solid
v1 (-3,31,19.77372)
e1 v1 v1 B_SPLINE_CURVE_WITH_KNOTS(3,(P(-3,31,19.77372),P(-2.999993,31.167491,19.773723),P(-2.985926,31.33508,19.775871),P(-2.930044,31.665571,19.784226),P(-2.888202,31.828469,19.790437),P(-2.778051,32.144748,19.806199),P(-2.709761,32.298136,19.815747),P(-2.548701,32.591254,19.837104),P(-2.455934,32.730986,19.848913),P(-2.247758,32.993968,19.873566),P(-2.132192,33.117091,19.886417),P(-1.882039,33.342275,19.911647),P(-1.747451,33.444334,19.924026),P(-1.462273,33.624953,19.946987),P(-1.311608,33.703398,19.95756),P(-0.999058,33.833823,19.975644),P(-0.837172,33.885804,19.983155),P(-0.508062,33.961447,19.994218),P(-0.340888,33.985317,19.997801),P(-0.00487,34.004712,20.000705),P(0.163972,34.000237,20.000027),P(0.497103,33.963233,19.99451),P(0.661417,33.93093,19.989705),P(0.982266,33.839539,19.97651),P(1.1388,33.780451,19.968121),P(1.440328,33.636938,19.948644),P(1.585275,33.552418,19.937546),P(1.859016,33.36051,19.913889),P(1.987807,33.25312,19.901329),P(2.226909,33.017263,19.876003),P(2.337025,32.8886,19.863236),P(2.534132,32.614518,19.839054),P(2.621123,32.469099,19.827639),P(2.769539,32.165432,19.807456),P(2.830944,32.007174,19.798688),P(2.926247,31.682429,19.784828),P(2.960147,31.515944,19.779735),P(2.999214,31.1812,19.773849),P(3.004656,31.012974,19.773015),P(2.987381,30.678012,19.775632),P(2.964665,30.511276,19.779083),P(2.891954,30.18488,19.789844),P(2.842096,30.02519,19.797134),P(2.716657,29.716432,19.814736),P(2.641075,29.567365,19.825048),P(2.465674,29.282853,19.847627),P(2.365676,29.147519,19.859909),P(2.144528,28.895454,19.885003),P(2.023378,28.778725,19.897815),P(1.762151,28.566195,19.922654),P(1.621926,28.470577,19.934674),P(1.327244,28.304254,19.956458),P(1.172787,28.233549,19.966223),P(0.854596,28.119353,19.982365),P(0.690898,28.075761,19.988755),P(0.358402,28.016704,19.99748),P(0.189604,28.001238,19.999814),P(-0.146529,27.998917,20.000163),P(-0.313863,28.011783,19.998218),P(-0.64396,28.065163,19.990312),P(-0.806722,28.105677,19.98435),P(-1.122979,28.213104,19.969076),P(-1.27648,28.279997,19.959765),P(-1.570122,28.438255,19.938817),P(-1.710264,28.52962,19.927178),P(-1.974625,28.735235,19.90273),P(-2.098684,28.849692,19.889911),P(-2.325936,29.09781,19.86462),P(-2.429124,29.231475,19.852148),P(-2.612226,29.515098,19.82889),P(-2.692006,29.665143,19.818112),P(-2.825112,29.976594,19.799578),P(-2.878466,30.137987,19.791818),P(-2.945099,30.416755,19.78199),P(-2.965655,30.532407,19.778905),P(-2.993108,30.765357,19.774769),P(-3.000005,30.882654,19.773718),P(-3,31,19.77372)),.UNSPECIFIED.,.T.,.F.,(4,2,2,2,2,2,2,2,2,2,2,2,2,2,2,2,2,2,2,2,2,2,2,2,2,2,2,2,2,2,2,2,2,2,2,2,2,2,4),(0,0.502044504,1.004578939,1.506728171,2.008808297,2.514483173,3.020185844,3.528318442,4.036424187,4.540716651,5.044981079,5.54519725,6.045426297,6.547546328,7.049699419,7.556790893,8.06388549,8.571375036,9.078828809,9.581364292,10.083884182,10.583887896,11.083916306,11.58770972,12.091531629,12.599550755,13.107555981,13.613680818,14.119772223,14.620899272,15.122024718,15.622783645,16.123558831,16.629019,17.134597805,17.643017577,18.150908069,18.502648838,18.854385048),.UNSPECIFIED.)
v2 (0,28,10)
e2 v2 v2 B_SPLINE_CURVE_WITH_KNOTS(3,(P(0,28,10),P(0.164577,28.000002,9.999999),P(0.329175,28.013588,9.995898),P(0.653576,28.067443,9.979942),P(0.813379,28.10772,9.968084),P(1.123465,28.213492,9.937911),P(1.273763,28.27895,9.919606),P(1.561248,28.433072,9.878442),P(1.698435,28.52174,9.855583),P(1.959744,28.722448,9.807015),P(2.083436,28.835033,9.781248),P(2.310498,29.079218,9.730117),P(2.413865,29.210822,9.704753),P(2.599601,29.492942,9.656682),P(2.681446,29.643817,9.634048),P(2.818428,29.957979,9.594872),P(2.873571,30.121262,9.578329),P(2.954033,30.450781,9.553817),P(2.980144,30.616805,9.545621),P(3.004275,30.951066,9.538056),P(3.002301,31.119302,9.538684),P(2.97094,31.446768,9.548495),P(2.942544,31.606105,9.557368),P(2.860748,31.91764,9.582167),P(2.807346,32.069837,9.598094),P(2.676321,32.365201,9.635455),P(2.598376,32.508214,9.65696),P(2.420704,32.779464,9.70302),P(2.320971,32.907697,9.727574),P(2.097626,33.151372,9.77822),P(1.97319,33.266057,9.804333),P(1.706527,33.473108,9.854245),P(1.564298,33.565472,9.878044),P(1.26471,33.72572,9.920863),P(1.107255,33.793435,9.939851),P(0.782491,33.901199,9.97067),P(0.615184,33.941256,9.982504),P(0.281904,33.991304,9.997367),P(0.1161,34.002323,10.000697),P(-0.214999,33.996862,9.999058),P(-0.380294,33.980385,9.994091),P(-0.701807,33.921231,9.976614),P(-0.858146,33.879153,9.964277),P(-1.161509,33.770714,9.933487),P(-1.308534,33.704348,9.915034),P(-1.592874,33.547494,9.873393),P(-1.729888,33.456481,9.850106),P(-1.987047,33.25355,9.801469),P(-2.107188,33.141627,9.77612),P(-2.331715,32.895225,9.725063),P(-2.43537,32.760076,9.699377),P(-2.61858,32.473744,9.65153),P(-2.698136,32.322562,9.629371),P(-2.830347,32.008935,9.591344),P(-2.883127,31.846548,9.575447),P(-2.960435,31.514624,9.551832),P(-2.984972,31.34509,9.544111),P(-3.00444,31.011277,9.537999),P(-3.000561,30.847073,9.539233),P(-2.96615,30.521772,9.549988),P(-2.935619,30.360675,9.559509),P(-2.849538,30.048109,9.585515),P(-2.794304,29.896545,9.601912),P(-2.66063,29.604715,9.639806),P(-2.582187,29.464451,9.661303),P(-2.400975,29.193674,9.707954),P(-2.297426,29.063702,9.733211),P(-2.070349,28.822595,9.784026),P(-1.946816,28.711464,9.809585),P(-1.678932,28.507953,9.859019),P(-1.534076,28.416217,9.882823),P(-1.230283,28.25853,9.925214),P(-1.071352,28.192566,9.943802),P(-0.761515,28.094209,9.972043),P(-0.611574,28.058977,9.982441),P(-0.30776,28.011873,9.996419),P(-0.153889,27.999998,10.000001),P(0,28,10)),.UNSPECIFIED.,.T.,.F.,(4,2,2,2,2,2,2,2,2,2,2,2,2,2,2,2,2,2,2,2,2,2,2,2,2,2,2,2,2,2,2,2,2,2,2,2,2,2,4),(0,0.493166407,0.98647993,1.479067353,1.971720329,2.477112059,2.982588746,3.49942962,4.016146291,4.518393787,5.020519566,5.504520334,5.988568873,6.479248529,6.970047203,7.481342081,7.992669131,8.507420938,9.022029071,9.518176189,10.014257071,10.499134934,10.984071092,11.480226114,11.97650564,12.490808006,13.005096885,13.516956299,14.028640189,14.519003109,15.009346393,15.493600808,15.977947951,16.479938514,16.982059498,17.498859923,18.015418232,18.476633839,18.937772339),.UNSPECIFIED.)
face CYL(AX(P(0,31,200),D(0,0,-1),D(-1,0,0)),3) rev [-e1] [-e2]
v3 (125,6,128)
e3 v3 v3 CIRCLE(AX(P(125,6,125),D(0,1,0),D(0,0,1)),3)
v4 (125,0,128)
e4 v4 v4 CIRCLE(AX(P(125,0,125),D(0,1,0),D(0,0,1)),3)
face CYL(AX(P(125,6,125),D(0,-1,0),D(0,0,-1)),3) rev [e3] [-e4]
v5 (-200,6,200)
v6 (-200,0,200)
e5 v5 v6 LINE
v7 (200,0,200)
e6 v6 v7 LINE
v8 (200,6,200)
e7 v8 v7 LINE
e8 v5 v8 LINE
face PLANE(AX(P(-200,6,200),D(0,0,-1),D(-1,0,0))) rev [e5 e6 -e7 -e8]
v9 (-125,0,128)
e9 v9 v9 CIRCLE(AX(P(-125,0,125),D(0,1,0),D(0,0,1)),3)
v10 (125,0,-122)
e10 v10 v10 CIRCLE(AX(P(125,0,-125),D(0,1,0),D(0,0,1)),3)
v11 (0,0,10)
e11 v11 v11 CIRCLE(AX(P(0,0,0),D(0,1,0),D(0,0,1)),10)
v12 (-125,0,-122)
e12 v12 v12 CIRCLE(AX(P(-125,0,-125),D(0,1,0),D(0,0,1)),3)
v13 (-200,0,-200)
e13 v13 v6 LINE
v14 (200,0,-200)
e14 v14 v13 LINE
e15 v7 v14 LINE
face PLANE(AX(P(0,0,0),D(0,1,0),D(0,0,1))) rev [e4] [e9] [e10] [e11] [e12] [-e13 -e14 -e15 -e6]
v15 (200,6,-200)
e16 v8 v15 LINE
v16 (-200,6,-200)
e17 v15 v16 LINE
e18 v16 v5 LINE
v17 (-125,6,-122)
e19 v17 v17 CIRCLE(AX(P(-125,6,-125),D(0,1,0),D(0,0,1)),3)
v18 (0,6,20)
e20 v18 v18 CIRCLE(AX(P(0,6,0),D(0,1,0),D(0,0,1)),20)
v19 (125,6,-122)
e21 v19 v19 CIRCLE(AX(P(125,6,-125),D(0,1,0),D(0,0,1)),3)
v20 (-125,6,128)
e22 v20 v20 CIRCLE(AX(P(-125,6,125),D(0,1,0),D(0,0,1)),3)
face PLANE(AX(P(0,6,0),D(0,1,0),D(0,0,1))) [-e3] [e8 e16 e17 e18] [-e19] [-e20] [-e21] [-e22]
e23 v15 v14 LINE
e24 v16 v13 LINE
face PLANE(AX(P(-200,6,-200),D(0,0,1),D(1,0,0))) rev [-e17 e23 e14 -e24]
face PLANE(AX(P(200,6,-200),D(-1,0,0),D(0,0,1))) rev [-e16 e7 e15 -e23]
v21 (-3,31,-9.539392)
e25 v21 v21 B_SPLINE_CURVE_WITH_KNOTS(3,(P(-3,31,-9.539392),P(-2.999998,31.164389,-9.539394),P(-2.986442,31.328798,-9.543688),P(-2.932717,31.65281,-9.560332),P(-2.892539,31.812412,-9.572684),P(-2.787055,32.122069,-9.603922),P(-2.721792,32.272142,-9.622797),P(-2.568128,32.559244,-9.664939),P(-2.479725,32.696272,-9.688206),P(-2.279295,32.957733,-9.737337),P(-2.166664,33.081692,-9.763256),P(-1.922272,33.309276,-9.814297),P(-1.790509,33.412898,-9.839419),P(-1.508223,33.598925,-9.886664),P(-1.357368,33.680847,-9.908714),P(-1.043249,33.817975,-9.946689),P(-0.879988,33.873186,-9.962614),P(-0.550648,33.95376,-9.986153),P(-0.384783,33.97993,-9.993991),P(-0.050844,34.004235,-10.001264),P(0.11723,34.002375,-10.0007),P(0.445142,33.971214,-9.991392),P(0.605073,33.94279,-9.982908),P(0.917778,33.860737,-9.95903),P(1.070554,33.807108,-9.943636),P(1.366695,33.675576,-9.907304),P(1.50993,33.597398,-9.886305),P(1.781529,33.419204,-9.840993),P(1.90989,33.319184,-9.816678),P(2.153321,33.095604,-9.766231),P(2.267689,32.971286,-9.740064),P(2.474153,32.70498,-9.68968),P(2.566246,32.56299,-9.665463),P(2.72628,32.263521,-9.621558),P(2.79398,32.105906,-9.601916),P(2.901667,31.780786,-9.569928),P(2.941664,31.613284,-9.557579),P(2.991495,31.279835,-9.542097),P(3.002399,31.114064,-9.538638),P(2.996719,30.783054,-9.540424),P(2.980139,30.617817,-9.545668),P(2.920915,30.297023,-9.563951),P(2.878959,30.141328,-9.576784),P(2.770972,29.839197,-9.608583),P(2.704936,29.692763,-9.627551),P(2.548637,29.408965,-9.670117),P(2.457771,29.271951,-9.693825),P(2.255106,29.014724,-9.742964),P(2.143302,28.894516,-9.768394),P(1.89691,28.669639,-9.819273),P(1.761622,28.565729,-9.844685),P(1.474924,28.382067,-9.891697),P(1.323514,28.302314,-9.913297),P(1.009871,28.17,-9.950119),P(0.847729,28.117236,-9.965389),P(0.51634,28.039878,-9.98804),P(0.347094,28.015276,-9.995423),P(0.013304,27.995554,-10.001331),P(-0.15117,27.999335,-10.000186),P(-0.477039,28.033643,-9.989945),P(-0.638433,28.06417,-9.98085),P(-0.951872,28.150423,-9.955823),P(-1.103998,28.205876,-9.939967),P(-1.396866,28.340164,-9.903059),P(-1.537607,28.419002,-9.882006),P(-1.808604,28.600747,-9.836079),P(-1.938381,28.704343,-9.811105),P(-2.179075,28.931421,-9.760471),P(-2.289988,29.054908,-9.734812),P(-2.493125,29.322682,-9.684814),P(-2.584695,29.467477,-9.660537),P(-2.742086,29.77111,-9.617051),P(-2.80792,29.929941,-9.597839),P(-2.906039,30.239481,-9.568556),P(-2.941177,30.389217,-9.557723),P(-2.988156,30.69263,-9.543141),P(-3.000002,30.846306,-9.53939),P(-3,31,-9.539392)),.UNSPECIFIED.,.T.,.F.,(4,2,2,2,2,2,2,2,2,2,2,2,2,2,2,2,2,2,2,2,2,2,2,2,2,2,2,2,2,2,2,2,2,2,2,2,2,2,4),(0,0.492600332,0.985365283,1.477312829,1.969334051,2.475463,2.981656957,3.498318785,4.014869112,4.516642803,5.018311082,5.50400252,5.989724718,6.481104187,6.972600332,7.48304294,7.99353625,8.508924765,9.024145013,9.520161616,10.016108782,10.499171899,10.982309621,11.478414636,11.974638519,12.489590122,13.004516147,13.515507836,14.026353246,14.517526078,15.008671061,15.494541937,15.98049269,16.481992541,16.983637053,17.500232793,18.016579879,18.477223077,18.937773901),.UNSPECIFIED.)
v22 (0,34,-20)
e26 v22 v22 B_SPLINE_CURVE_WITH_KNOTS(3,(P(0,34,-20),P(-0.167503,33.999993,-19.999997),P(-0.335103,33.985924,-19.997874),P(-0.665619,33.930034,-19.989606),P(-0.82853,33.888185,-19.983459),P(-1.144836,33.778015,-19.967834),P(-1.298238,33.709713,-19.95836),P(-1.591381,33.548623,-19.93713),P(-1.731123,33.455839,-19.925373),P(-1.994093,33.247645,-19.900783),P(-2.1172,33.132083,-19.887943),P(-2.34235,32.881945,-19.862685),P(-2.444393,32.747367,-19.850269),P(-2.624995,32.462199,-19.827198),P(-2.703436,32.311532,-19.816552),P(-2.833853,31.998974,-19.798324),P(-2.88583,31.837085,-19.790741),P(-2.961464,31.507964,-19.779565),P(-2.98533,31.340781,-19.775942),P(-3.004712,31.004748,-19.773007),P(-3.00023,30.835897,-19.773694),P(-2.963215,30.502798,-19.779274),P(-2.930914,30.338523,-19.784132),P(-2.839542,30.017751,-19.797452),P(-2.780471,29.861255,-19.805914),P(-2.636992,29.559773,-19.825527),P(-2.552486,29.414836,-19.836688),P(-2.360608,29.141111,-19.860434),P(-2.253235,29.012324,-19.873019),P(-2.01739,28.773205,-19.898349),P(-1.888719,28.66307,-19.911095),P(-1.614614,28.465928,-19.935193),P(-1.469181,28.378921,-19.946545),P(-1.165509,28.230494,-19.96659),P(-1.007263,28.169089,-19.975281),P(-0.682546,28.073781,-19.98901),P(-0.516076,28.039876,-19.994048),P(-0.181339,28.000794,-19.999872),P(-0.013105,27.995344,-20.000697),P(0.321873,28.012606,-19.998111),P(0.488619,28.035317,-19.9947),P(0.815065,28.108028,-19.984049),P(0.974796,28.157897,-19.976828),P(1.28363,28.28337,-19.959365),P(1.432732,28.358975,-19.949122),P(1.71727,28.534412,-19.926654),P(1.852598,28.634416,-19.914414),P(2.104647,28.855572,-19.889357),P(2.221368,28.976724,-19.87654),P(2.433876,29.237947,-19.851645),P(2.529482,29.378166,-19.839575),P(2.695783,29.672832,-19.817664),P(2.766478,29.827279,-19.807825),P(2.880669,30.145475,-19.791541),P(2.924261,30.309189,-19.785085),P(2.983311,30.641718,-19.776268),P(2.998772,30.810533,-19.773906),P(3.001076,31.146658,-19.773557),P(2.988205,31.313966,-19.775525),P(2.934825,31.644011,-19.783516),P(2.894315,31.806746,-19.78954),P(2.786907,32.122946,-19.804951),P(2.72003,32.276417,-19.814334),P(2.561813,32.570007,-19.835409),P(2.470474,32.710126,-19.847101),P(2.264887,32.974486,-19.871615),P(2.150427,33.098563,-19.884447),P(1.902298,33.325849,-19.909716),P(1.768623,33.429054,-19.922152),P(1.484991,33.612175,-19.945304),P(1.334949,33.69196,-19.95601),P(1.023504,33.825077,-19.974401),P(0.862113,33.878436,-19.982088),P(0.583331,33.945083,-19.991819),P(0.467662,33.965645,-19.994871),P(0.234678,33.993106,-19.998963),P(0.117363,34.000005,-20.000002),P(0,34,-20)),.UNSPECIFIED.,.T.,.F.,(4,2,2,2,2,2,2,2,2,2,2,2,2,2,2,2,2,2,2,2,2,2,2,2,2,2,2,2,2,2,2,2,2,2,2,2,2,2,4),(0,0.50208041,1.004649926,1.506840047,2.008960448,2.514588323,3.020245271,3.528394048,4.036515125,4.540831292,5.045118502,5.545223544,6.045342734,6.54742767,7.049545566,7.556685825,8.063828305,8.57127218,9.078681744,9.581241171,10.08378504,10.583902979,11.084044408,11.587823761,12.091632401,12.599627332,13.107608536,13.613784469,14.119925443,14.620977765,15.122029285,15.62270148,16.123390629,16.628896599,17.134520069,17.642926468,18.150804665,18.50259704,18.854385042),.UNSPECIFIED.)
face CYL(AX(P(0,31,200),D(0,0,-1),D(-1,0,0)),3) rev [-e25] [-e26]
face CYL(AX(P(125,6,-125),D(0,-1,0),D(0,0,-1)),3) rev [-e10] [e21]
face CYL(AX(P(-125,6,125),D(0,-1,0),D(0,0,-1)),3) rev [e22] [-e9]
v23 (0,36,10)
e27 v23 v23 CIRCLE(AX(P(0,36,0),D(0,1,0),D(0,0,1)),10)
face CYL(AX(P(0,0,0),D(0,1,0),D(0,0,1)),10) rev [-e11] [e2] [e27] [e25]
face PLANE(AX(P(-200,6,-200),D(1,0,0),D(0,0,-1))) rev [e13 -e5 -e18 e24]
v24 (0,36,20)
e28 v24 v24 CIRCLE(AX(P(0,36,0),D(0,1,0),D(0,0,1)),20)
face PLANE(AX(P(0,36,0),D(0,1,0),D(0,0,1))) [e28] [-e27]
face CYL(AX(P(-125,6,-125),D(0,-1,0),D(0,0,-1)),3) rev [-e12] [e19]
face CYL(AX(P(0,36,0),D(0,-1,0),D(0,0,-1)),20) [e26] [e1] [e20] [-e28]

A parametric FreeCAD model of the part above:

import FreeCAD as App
import Part
import Sketcher

V = App.Vector

doc = App.newDocument("Part")
params = doc.addObject("Spreadsheet::Sheet", "Params")
for row, (alias, value) in enumerate([
    ("sketch1_diameter", "6 mm"),
    ("sketch1_width", "400 mm"),
    ("pad1_length", "6 mm"),
    ("sketch2_diameter", "40 mm"),
    ("pad2_length", "30 mm"),
    ("sketch3_diameter", "20 mm"),
    ("sketch4_diameter", "6 mm"),
], start=1):
    params.set(f"A{row}", alias)
    params.set(f"B{row}", "=" + value)
    params.setAlias(f"B{row}", alias)

body = doc.addObject("PartDesign::Body", "Body")

# Sketch on XZ plane
sketch1 = body.newObject("Sketcher::SketchObject", "Sketch")
sketch1.AttachmentSupport = (doc.getObject("XZ_Plane"), [""])
sketch1.MapMode = "FlatFace"
sketch1.addGeometry([
    Part.LineSegment(V(-200, -200, 0), V(-200, 200, 0)),  # 0
    Part.LineSegment(V(-200, 200, 0), V(200, 200, 0)),  # 1
    Part.LineSegment(V(200, 200, 0), V(200, -200, 0)),  # 2
    Part.LineSegment(V(200, -200, 0), V(-200, -200, 0)),  # 3
    Part.Circle(V(-125, 125, 0), V(0, 0, 1), 3),  # 4
    Part.Circle(V(125, 125, 0), V(0, 0, 1), 3),  # 5
    Part.Circle(V(-125, -125, 0), V(0, 0, 1), 3),  # 6
    Part.Circle(V(125, -125, 0), V(0, 0, 1), 3),  # 7
], False)
sketch1.addConstraint([
    Sketcher.Constraint("Coincident", 0, 2, 1, 1),
    Sketcher.Constraint("Coincident", 1, 2, 2, 1),
    Sketcher.Constraint("Coincident", 2, 2, 3, 1),
    Sketcher.Constraint("Coincident", 3, 2, 0, 1),
    Sketcher.Constraint("Vertical", 0),
    Sketcher.Constraint("Horizontal", 1),
    Sketcher.Constraint("Vertical", 2),
    Sketcher.Constraint("Horizontal", 3),
    Sketcher.Constraint("Equal", 4, 5),
    Sketcher.Constraint("Equal", 5, 6),
    Sketcher.Constraint("Equal", 6, 7),
    Sketcher.Constraint("Symmetric", 5, 3, 6, 3, -1, 1),
    Sketcher.Constraint("Symmetric", 4, 3, 7, 3, -1, 1),
    Sketcher.Constraint("Symmetric", 0, 2, 2, 2, -1, 1),
    Sketcher.Constraint("Symmetric", 4, 3, 5, 3, -2),
    Sketcher.Constraint("Equal", 3, 0),
    Sketcher.Constraint("Diameter", 4, 6.0),
    Sketcher.Constraint("DistanceX", 1, 1, 1, 2, 400.0),
    Sketcher.Constraint("DistanceX", 4, 3, -1, 1, 125.0),
    Sketcher.Constraint("DistanceY", -1, 1, 4, 3, 125.0),
])
sketch1.setExpression("Constraints[16]", "Params.sketch1_diameter")
sketch1.setExpression("Constraints[17]", "Params.sketch1_width")
pad1 = body.newObject("PartDesign::Pad", "Pad")
pad1.Profile = sketch1
pad1.setExpression("Length", "Params.pad1_length")
pad1.Reversed = True

# Sketch on XZ plane
sketch2 = body.newObject("Sketcher::SketchObject", "Sketch001")
sketch2.AttachmentSupport = (doc.getObject("XZ_Plane"), [""])
sketch2.MapMode = "FlatFace"
sketch2.AttachmentOffset = App.Placement(V(0, 0, -6), App.Rotation())
sketch2.addGeometry(Part.Circle(V(0, 0, 0), V(0, 0, 1), 20), False)
sketch2.addConstraint([
    Sketcher.Constraint("Coincident", 0, 3, -1, 1),
    Sketcher.Constraint("Diameter", 0, 40.0),
])
sketch2.setExpression("Constraints[1]", "Params.sketch2_diameter")
pad2 = body.newObject("PartDesign::Pad", "Pad001")
pad2.Profile = sketch2
pad2.setExpression("Length", "Params.pad2_length")
pad2.Reversed = True

# Sketch on XZ plane
sketch3 = body.newObject("Sketcher::SketchObject", "Sketch002")
sketch3.AttachmentSupport = (doc.getObject("XZ_Plane"), [""])
sketch3.MapMode = "FlatFace"
sketch3.AttachmentOffset = App.Placement(V(0, 0, -36), App.Rotation())
sketch3.addGeometry(Part.Circle(V(0, 0, 0), V(0, 0, 1), 10), False)
sketch3.addConstraint([
    Sketcher.Constraint("Coincident", 0, 3, -1, 1),
    Sketcher.Constraint("Diameter", 0, 20.0),
])
sketch3.setExpression("Constraints[1]", "Params.sketch3_diameter")
pocket1 = body.newObject("PartDesign::Pocket", "Pocket")
pocket1.Profile = sketch3
pocket1.Type = "ThroughAll"
pocket1.Reversed = True

# Sketch on XY plane
sketch4 = body.newObject("Sketcher::SketchObject", "Sketch003")
sketch4.AttachmentSupport = (doc.getObject("XY_Plane"), [""])
sketch4.MapMode = "FlatFace"
sketch4.AttachmentOffset = App.Placement(V(0, 0, -20), App.Rotation())
sketch4.addGeometry(Part.Circle(V(0, 31, 0), V(0, 0, 1), 3), False)
sketch4.addConstraint([
    Sketcher.Constraint("PointOnObject", 0, 3, -2),
    Sketcher.Constraint("Diameter", 0, 6.0),
    Sketcher.Constraint("DistanceY", -1, 1, 0, 3, 31.0),
])
sketch4.setExpression("Constraints[1]", "Params.sketch4_diameter")
pocket2 = body.newObject("PartDesign::Pocket", "Pocket001")
pocket2.Profile = sketch4
pocket2.Type = "ThroughAll"
pocket2.Reversed = True

doc.recompute()
